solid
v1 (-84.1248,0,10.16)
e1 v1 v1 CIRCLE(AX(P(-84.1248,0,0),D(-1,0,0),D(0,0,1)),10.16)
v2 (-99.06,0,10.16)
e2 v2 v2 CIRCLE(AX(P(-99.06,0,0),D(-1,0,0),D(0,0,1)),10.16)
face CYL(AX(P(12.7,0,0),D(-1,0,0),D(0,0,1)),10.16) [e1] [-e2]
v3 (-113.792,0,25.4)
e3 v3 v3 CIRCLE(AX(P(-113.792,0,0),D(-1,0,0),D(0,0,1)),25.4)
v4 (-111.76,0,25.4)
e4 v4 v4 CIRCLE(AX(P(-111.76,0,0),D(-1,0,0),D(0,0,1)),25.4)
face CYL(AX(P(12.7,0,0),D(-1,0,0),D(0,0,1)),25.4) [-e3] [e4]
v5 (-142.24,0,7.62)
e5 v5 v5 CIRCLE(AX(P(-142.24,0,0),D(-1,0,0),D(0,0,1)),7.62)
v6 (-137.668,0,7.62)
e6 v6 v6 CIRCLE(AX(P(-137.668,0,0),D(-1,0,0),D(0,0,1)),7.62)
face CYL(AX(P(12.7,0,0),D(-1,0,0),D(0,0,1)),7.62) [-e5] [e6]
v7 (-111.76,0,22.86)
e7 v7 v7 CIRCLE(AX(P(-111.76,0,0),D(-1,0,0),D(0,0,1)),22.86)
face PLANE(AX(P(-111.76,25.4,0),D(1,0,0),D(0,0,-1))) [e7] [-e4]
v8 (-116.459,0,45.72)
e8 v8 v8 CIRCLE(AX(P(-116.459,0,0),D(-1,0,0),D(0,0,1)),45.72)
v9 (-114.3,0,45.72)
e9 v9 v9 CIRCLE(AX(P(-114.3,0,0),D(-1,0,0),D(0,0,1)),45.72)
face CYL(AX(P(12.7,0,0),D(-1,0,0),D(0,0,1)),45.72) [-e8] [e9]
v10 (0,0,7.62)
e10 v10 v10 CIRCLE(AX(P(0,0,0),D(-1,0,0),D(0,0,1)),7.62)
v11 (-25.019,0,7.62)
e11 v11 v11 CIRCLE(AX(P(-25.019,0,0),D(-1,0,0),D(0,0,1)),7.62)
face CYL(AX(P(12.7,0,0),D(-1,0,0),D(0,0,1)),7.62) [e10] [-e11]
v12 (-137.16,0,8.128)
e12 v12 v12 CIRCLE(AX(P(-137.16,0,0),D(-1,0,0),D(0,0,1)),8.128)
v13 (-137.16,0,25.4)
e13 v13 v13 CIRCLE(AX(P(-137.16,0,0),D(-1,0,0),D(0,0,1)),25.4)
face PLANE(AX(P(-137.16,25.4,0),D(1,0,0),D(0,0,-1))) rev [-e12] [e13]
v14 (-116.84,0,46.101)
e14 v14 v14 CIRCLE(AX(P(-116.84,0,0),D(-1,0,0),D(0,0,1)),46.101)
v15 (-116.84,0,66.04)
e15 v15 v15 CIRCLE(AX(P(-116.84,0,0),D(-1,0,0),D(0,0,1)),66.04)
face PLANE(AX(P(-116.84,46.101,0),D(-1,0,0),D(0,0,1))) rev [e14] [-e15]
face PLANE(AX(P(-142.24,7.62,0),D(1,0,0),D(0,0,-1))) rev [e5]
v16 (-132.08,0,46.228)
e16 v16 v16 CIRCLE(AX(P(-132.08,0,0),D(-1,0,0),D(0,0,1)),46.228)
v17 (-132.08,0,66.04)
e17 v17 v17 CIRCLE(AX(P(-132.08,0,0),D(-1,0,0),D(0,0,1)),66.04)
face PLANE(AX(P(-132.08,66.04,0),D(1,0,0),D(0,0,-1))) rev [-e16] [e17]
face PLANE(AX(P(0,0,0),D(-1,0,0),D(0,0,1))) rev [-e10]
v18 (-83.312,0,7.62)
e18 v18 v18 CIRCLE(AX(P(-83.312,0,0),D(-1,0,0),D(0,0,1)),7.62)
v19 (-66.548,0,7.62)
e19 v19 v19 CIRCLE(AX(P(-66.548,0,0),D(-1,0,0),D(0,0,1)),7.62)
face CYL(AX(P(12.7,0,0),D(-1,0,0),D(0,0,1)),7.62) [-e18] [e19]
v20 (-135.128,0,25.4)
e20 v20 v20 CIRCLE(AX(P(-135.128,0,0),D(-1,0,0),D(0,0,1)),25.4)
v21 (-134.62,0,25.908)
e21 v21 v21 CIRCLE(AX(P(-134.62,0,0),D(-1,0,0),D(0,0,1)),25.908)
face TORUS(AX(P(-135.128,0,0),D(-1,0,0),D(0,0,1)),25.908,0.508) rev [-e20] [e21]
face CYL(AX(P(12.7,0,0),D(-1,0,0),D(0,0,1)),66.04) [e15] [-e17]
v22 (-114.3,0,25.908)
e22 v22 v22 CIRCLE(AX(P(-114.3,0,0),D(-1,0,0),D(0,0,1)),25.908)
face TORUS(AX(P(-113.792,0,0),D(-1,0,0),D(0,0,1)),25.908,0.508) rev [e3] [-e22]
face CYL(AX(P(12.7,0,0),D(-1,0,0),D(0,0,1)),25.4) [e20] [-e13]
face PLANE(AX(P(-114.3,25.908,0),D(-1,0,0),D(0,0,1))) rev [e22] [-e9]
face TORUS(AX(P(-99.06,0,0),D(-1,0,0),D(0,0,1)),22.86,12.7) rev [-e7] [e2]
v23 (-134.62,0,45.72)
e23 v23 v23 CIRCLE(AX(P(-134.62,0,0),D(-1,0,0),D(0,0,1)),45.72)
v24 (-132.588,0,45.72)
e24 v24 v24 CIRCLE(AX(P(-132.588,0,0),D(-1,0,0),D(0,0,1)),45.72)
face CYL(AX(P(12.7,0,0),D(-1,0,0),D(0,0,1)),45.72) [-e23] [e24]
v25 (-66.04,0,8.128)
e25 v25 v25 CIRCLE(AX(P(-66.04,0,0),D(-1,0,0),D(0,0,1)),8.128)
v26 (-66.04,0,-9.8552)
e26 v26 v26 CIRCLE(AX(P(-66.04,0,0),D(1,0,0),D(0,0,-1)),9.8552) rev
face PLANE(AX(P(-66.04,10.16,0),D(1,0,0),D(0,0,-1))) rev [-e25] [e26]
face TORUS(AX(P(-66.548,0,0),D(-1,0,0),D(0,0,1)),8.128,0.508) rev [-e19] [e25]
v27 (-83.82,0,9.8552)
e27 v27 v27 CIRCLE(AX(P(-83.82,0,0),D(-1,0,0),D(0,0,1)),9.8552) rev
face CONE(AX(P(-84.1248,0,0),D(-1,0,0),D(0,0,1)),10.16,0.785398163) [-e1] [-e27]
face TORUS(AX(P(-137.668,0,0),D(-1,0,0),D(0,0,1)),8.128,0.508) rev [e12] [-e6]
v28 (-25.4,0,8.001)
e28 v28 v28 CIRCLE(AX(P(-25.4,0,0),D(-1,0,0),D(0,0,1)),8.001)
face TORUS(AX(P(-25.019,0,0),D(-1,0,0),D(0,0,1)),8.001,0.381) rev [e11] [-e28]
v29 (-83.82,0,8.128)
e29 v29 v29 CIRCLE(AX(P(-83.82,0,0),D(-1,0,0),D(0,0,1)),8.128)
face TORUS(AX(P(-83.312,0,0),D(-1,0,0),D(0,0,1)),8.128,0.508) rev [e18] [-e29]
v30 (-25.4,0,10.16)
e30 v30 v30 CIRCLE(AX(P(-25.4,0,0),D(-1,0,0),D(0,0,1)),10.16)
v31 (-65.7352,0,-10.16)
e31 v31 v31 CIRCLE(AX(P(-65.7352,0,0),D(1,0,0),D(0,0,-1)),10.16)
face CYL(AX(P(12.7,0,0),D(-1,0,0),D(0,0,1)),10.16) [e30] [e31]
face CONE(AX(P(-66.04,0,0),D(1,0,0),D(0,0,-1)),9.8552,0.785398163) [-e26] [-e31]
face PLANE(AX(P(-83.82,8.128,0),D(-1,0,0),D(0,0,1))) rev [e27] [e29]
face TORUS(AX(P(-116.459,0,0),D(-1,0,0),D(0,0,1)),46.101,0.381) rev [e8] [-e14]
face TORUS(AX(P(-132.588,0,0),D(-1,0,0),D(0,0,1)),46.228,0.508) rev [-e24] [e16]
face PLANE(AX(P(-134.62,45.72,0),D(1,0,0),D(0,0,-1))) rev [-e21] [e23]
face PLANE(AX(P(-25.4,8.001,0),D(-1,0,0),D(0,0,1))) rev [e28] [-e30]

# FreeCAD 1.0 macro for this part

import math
import FreeCAD as App
import Part
import Sketcher

V = App.Vector
Q = App.Units.Quantity


def edges_at(feature, points):
    """Names of the edges that pass closest to the given points."""
    edges = feature.Shape.Edges
    near = lambda p: min(range(len(edges)), key=lambda i: edges[i].distToShape(Part.Vertex(*p))[0])
    return sorted({f"Edge{near(p) + 1}" for p in points})

doc = App.newDocument("Part")
body = doc.addObject("PartDesign::Body", "Body")

sketch1 = body.newObject("Sketcher::SketchObject", "Sketch")
sketch1.AttachmentSupport = (doc.getObject("XY_Plane"), [""])
sketch1.MapMode = "FlatFace"
sketch1.addGeometry(Part.LineSegment(V(0, 7.62, 0), V(-25.019, 7.62, 0)), False)
sketch1.addGeometry(Part.ArcOfCircle(Part.Circle(V(-25.019, 8.001, 0), V(0, 0, 1), 0.381), math.radians(180), math.radians(270)), False)
sketch1.addGeometry(Part.LineSegment(V(-25.4, 8.001, 0), V(-25.4, 10.16, 0)), False)
sketch1.addGeometry(Part.LineSegment(V(-25.4, 10.16, 0), V(-66.04, 10.16, 0)), False)
sketch1.addGeometry(Part.LineSegment(V(-66.04, 10.16, 0), V(-66.04, 8.128, 0)), False)
sketch1.addGeometry(Part.ArcOfCircle(Part.Circle(V(-66.548, 8.128, 0), V(0, 0, 1), 0.508), math.radians(-90), math.radians(0)), False)
sketch1.addGeometry(Part.LineSegment(V(-66.548, 7.62, 0), V(-83.312, 7.62, 0)), False)
sketch1.addGeometry(Part.ArcOfCircle(Part.Circle(V(-83.312, 8.128, 0), V(0, 0, 1), 0.508), math.radians(180), math.radians(270)), False)
sketch1.addGeometry(Part.LineSegment(V(-83.82, 8.128, 0), V(-83.82, 10.16, 0)), False)
sketch1.addGeometry(Part.LineSegment(V(-83.82, 10.16, 0), V(-99.06, 10.16, 0)), False)
sketch1.addGeometry(Part.ArcOfCircle(Part.Circle(V(-99.06, 22.86, 0), V(0, 0, 1), 12.7), math.radians(180), math.radians(270)), False)
sketch1.addGeometry(Part.LineSegment(V(-111.76, 22.86, 0), V(-111.76, 25.4, 0)), False)
sketch1.addGeometry(Part.LineSegment(V(-111.76, 25.4, 0), V(-113.792, 25.4, 0)), False)
sketch1.addGeometry(Part.ArcOfCircle(Part.Circle(V(-113.792, 25.908, 0), V(0, 0, 1), 0.508), math.radians(180), math.radians(270)), False)
sketch1.addGeometry(Part.LineSegment(V(-114.3, 25.908, 0), V(-114.3, 45.72, 0)), False)
sketch1.addGeometry(Part.LineSegment(V(-114.3, 45.72, 0), V(-116.459, 45.72, 0)), False)
sketch1.addGeometry(Part.ArcOfCircle(Part.Circle(V(-116.459, 46.101, 0), V(0, 0, 1), 0.381), math.radians(180), math.radians(270)), False)
sketch1.addGeometry(Part.LineSegment(V(-116.84, 46.101, 0), V(-116.84, 66.04, 0)), False)
sketch1.addGeometry(Part.LineSegment(V(-116.84, 66.04, 0), V(-132.08, 66.04, 0)), False)
sketch1.addGeometry(Part.LineSegment(V(-132.08, 66.04, 0), V(-132.08, 46.228, 0)), False)
sketch1.addGeometry(Part.ArcOfCircle(Part.Circle(V(-132.588, 46.228, 0), V(0, 0, 1), 0.508), math.radians(-90), math.radians(0)), False)
sketch1.addGeometry(Part.LineSegment(V(-132.588, 45.72, 0), V(-134.62, 45.72, 0)), False)
sketch1.addGeometry(Part.LineSegment(V(-134.62, 45.72, 0), V(-134.62, 25.908, 0)), False)
sketch1.addGeometry(Part.ArcOfCircle(Part.Circle(V(-135.128, 25.908, 0), V(0, 0, 1), 0.508), math.radians(-90), math.radians(0)), False)
sketch1.addGeometry(Part.LineSegment(V(-135.128, 25.4, 0), V(-137.16, 25.4, 0)), False)
sketch1.addGeometry(Part.LineSegment(V(-137.16, 25.4, 0), V(-137.16, 8.128, 0)), False)
sketch1.addGeometry(Part.ArcOfCircle(Part.Circle(V(-137.668, 8.128, 0), V(0, 0, 1), 0.508), math.radians(-90), math.radians(0)), False)
sketch1.addGeometry(Part.LineSegment(V(-137.668, 7.62, 0), V(-142.24, 7.62, 0)), False)
sketch1.addGeometry(Part.LineSegment(V(-142.24, 7.62, 0), V(-142.24, 0, 0)), False)
sketch1.addGeometry(Part.LineSegment(V(-142.24, 0, 0), V(0, 0, 0)), False)
sketch1.addGeometry(Part.LineSegment(V(0, 0, 0), V(0, 7.62, 0)), False)
sketch1.addConstraint(Sketcher.Constraint("Tangent", 0, 2, 1, 2))
sketch1.addConstraint(Sketcher.Constraint("Tangent", 1, 1, 2, 1))
sketch1.addConstraint(Sketcher.Constraint("Coincident", 2, 2, 3, 1))
sketch1.addConstraint(Sketcher.Constraint("Coincident", 3, 2, 4, 1))
sketch1.addConstraint(Sketcher.Constraint("Tangent", 4, 2, 5, 2))
sketch1.addConstraint(Sketcher.Constraint("Tangent", 5, 1, 6, 1))
sketch1.addConstraint(Sketcher.Constraint("Tangent", 6, 2, 7, 2))
sketch1.addConstraint(Sketcher.Constraint("Tangent", 7, 1, 8, 1))
sketch1.addConstraint(Sketcher.Constraint("Coincident", 8, 2, 9, 1))
sketch1.addConstraint(Sketcher.Constraint("Tangent", 9, 2, 10, 2))
sketch1.addConstraint(Sketcher.Constraint("Tangent", 10, 1, 11, 1))
sketch1.addConstraint(Sketcher.Constraint("Coincident", 11, 2, 12, 1))
sketch1.addConstraint(Sketcher.Constraint("Tangent", 12, 2, 13, 2))
sketch1.addConstraint(Sketcher.Constraint("Tangent", 13, 1, 14, 1))
sketch1.addConstraint(Sketcher.Constraint("Coincident", 14, 2, 15, 1))
sketch1.addConstraint(Sketcher.Constraint("Tangent", 15, 2, 16, 2))
sketch1.addConstraint(Sketcher.Constraint("Tangent", 16, 1, 17, 1))
sketch1.addConstraint(Sketcher.Constraint("Coincident", 17, 2, 18, 1))
sketch1.addConstraint(Sketcher.Constraint("Coincident", 18, 2, 19, 1))
sketch1.addConstraint(Sketcher.Constraint("Tangent", 19, 2, 20, 2))
sketch1.addConstraint(Sketcher.Constraint("Tangent", 20, 1, 21, 1))
sketch1.addConstraint(Sketcher.Constraint("Coincident", 21, 2, 22, 1))
sketch1.addConstraint(Sketcher.Constraint("Tangent", 22, 2, 23, 2))
sketch1.addConstraint(Sketcher.Constraint("Tangent", 23, 1, 24, 1))
sketch1.addConstraint(Sketcher.Constraint("Coincident", 24, 2, 25, 1))
sketch1.addConstraint(Sketcher.Constraint("Tangent", 25, 2, 26, 2))
sketch1.addConstraint(Sketcher.Constraint("Tangent", 26, 1, 27, 1))
sketch1.addConstraint(Sketcher.Constraint("Coincident", 27, 2, 28, 1))
sketch1.addConstraint(Sketcher.Constraint("Coincident", 28, 2, 29, 1))
sketch1.addConstraint(Sketcher.Constraint("Coincident", 29, 2, 30, 1))
sketch1.addConstraint(Sketcher.Constraint("Coincident", 30, 2, 0, 1))
sketch1.addConstraint(Sketcher.Constraint("Horizontal", 0))
sketch1.addConstraint(Sketcher.Constraint("Vertical", 2))
sketch1.addConstraint(Sketcher.Constraint("Horizontal", 3))
sketch1.addConstraint(Sketcher.Constraint("Vertical", 4))
sketch1.addConstraint(Sketcher.Constraint("Horizontal", 6))
sketch1.addConstraint(Sketcher.Constraint("Vertical", 8))
sketch1.addConstraint(Sketcher.Constraint("Horizontal", 9))
sketch1.addConstraint(Sketcher.Constraint("Vertical", 11))
sketch1.addConstraint(Sketcher.Constraint("Horizontal", 12))
sketch1.addConstraint(Sketcher.Constraint("Vertical", 14))
sketch1.addConstraint(Sketcher.Constraint("Horizontal", 15))
sketch1.addConstraint(Sketcher.Constraint("Vertical", 17))
sketch1.addConstraint(Sketcher.Constraint("Horizontal", 18))
sketch1.addConstraint(Sketcher.Constraint("Vertical", 19))
sketch1.addConstraint(Sketcher.Constraint("Horizontal", 21))
sketch1.addConstraint(Sketcher.Constraint("Vertical", 22))
sketch1.addConstraint(Sketcher.Constraint("Horizontal", 24))
sketch1.addConstraint(Sketcher.Constraint("Vertical", 25))
sketch1.addConstraint(Sketcher.Constraint("Horizontal", 27))
sketch1.addConstraint(Sketcher.Constraint("Vertical", 28))
sketch1.addConstraint(Sketcher.Constraint("Horizontal", 29))
sketch1.addConstraint(Sketcher.Constraint("Vertical", 30))
sketch1.addConstraint(Sketcher.Constraint("Coincident", 29, 2, -1, 1))
sketch1.addConstraint(Sketcher.Constraint("Equal", 5, 7))
sketch1.addConstraint(Sketcher.Constraint("Equal", 7, 13))
sketch1.addConstraint(Sketcher.Constraint("Equal", 1, 16))
sketch1.addConstraint(Sketcher.Constraint("Equal", 13, 20))
sketch1.addConstraint(Sketcher.Constraint("Equal", 20, 23))
sketch1.addConstraint(Sketcher.Constraint("Equal", 23, 26))
sketch1.addConstraint(Sketcher.Constraint("Horizontal", 13, 3, 23, 3))
sketch1.addConstraint(Sketcher.Constraint("Horizontal", 7, 3, 26, 3))
sketch1.addConstraint(Sketcher.Constraint("Horizontal", 0, 2, 5, 1))
sketch1.addConstraint(Sketcher.Constraint("Horizontal", 3, 2, 8, 2))
sketch1.addConstraint(Sketcher.Constraint("Horizontal", 15, 2, 20, 1))
sketch1.addConstraint(Sketcher.Constraint("Equal", 9, 18))
sketch1.addConstraint(Sketcher.Constraint("Equal", 12, 21))
sketch1.addConstraint(Sketcher.Constraint("Equal", 21, 24))
sketch1.addConstraint(Sketcher.Constraint("Equal", 15, 2))
sketch1.addConstraint(Sketcher.Constraint("Equal", 24, 4))
sketch1.addConstraint(Sketcher.Constraint("Equal", 14, 19))
sketch1.addConstraint(Sketcher.Constraint("Radius", 10, Q("0.5 in")))
sketch1.addConstraint(Sketcher.Constraint("Radius", 5, Q("0.02 in")))
sketch1.addConstraint(Sketcher.Constraint("DistanceX", 3, 2, 3, 1, Q("1.6 in")))
sketch1.addConstraint(Sketcher.Constraint("DistanceX", 9, 2, 9, 1, Q("0.6 in")))
sketch1.addConstraint(Sketcher.Constraint("DistanceX", 29, 1, 29, 2, Q("5.6 in")))
sketch1.addConstraint(Sketcher.Constraint("DistanceY", 11, 1, 11, 2, Q("0.1 in")))
sketch1.addConstraint(Sketcher.Constraint("DistanceY", 28, 2, 28, 1, Q("0.3 in")))
sketch1.addConstraint(Sketcher.Constraint("DistanceX", 1, 1, -1, 1, Q("1 in")))
sketch1.addConstraint(Sketcher.Constraint("DistanceY", -1, 1, 11, 2, Q("1 in")))
sketch1.addConstraint(Sketcher.Constraint("Radius", 1, Q("0.015 in")))
sketch1.addConstraint(Sketcher.Constraint("DistanceX", 6, 2, 6, 1, Q("0.66 in")))
sketch1.addConstraint(Sketcher.Constraint("DistanceY", 14, 1, 14, 2, Q("0.78 in")))
revolution = body.newObject("PartDesign::Revolution", "Revolution")
revolution.Profile = sketch1
revolution.ReferenceAxis = (sketch1, ["H_Axis"])
revolution.Angle = 360
doc.recompute()

chamfer = body.newObject("PartDesign::Chamfer", "Chamfer")
chamfer.Base = (revolution, edges_at(revolution, [(-83.82, 0, -10.16), (-66.04, 0, -10.16)]))
chamfer.Size = Q("0.012 in")

doc.recompute()
